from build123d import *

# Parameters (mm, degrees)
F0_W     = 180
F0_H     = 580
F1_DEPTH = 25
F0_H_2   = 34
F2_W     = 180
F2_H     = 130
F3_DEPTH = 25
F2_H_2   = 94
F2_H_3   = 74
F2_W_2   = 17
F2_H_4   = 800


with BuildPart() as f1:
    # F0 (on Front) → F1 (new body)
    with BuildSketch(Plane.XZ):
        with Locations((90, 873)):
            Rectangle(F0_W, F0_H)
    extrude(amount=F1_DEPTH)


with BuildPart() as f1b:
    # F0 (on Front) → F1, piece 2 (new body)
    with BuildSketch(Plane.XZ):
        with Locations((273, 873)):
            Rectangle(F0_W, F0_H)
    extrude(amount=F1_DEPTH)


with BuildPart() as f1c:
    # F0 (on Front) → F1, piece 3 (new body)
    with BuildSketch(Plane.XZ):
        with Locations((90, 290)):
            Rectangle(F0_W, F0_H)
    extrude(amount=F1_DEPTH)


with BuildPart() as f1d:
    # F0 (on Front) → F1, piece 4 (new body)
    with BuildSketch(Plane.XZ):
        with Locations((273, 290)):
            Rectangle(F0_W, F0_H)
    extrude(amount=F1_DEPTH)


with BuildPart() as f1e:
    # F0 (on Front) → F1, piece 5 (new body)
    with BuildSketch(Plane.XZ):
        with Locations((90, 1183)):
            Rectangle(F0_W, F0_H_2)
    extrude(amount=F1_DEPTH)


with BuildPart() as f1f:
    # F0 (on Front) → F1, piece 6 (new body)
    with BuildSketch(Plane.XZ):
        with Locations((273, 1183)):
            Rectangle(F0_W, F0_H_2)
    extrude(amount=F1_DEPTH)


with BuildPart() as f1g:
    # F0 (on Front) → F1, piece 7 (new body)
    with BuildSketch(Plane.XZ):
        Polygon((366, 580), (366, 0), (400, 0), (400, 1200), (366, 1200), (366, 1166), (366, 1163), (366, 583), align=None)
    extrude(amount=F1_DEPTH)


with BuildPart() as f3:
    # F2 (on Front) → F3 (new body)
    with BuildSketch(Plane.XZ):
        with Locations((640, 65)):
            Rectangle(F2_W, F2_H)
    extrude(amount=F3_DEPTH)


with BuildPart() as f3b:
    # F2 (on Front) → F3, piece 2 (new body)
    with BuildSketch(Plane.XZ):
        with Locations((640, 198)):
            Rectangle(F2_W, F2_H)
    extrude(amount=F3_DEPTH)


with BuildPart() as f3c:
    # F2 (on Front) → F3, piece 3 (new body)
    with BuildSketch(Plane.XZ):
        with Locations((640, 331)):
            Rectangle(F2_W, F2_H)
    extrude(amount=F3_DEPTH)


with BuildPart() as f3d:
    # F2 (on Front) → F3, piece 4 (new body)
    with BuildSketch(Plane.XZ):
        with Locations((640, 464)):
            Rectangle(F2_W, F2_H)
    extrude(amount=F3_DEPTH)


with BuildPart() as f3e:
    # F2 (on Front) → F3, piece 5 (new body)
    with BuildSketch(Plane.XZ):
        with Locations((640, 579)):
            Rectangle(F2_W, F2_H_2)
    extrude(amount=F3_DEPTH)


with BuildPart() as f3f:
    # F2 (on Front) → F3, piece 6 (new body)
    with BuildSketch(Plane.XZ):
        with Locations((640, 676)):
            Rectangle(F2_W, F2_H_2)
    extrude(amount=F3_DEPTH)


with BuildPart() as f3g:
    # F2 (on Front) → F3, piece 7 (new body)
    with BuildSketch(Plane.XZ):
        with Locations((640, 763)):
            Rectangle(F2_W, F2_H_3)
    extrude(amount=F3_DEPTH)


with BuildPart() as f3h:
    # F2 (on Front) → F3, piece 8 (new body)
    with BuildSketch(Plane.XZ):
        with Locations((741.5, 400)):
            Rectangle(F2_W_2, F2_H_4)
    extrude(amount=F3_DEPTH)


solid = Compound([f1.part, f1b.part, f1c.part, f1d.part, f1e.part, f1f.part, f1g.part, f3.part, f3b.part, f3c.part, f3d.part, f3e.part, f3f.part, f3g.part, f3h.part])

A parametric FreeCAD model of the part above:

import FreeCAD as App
import Part
import Sketcher

V = App.Vector

doc = App.newDocument("Part")
body = doc.addObject("PartDesign::Body", "Body")

sketch1 = body.newObject("Sketcher::SketchObject", "Sketch")
sketch1.AttachmentSupport = (doc.getObject("XZ_Plane"), [""])
sketch1.MapMode = "FlatFace"
sketch1.addGeometry([
    Part.LineSegment(V(0, 1163, 0), V(0, 583, 0)),
    Part.LineSegment(V(0, 583, 0), V(180, 583, 0)),
    Part.LineSegment(V(180, 583, 0), V(180, 1163, 0)),
    Part.LineSegment(V(180, 1163, 0), V(0, 1163, 0)),
], False)
sketch1.addConstraint([
    Sketcher.Constraint("Coincident", 0, 2, 1, 1),
    Sketcher.Constraint("Coincident", 1, 2, 2, 1),
    Sketcher.Constraint("Coincident", 2, 2, 3, 1),
    Sketcher.Constraint("Coincident", 3, 2, 0, 1),
    Sketcher.Constraint("Vertical", 0),
    Sketcher.Constraint("Horizontal", 1),
    Sketcher.Constraint("Vertical", 2),
    Sketcher.Constraint("Horizontal", 3),
    Sketcher.Constraint("PointOnObject", 0, 2, -2),
    Sketcher.Constraint("DistanceX", 1, 1, 1, 2, 180.0),
    Sketcher.Constraint("DistanceY", 0, 2, 0, 1, 580.0),
    Sketcher.Constraint("DistanceY", -1, 1, 0, 2, 583.0),
])
pad1 = body.newObject("PartDesign::Pad", "Pad")
pad1.Profile = sketch1
pad1.Length = 25
body2 = doc.addObject("PartDesign::Body", "Body001")

sketch2 = body2.newObject("Sketcher::SketchObject", "Sketch001")
sketch2.AttachmentSupport = (doc.getObject("XZ_Plane001"), [""])
sketch2.MapMode = "FlatFace"
sketch2.addGeometry([
    Part.LineSegment(V(183, 1163, 0), V(183, 583, 0)),
    Part.LineSegment(V(183, 583, 0), V(363, 583, 0)),
    Part.LineSegment(V(363, 583, 0), V(363, 1163, 0)),
    Part.LineSegment(V(363, 1163, 0), V(183, 1163, 0)),
], False)
sketch2.addConstraint([
    Sketcher.Constraint("Coincident", 0, 2, 1, 1),
    Sketcher.Constraint("Coincident", 1, 2, 2, 1),
    Sketcher.Constraint("Coincident", 2, 2, 3, 1),
    Sketcher.Constraint("Coincident", 3, 2, 0, 1),
    Sketcher.Constraint("Vertical", 0),
    Sketcher.Constraint("Horizontal", 1),
    Sketcher.Constraint("Vertical", 2),
    Sketcher.Constraint("Horizontal", 3),
    Sketcher.Constraint("DistanceX", 1, 1, 1, 2, 180.0),
    Sketcher.Constraint("DistanceY", 0, 2, 0, 1, 580.0),
    Sketcher.Constraint("DistanceX", -1, 1, 0, 2, 183.0),
    Sketcher.Constraint("DistanceY", -1, 1, 0, 2, 583.0),
])
pad2 = body2.newObject("PartDesign::Pad", "Pad001")
pad2.Profile = sketch2
pad2.Length = 25
body3 = doc.addObject("PartDesign::Body", "Body002")

sketch3 = body3.newObject("Sketcher::SketchObject", "Sketch002")
sketch3.AttachmentSupport = (doc.getObject("XZ_Plane002"), [""])
sketch3.MapMode = "FlatFace"
sketch3.addGeometry([
    Part.LineSegment(V(0, 580, 0), V(0, 0, 0)),
    Part.LineSegment(V(0, 0, 0), V(180, 0, 0)),
    Part.LineSegment(V(180, 0, 0), V(180, 580, 0)),
    Part.LineSegment(V(180, 580, 0), V(0, 580, 0)),
], False)
sketch3.addConstraint([
    Sketcher.Constraint("Coincident", 0, 2, 1, 1),
    Sketcher.Constraint("Coincident", 1, 2, 2, 1),
    Sketcher.Constraint("Coincident", 2, 2, 3, 1),
    Sketcher.Constraint("Coincident", 3, 2, 0, 1),
    Sketcher.Constraint("Vertical", 0),
    Sketcher.Constraint("Horizontal", 1),
    Sketcher.Constraint("Vertical", 2),
    Sketcher.Constraint("Horizontal", 3),
    Sketcher.Constraint("Coincident", 0, 2, -1, 1),
    Sketcher.Constraint("DistanceX", 1, 1, 1, 2, 180.0),
    Sketcher.Constraint("DistanceY", 0, 2, 0, 1, 580.0),
])
pad3 = body3.newObject("PartDesign::Pad", "Pad002")
pad3.Profile = sketch3
pad3.Length = 25
body4 = doc.addObject("PartDesign::Body", "Body003")

sketch4 = body4.newObject("Sketcher::SketchObject", "Sketch003")
sketch4.AttachmentSupport = (doc.getObject("XZ_Plane003"), [""])
sketch4.MapMode = "FlatFace"
sketch4.addGeometry([
    Part.LineSegment(V(183, 580, 0), V(183, 0, 0)),
    Part.LineSegment(V(183, 0, 0), V(363, 0, 0)),
    Part.LineSegment(V(363, 0, 0), V(363, 580, 0)),
    Part.LineSegment(V(363, 580, 0), V(183, 580, 0)),
], False)
sketch4.addConstraint([
    Sketcher.Constraint("Coincident", 0, 2, 1, 1),
    Sketcher.Constraint("Coincident", 1, 2, 2, 1),
    Sketcher.Constraint("Coincident", 2, 2, 3, 1),
    Sketcher.Constraint("Coincident", 3, 2, 0, 1),
    Sketcher.Constraint("Vertical", 0),
    Sketcher.Constraint("Horizontal", 1),
    Sketcher.Constraint("Vertical", 2),
    Sketcher.Constraint("Horizontal", 3),
    Sketcher.Constraint("PointOnObject", 0, 2, -1),
    Sketcher.Constraint("DistanceX", 1, 1, 1, 2, 180.0),
    Sketcher.Constraint("DistanceY", 0, 2, 0, 1, 580.0),
    Sketcher.Constraint("DistanceX", -1, 1, 0, 2, 183.0),
])
pad4 = body4.newObject("PartDesign::Pad", "Pad003")
pad4.Profile = sketch4
pad4.Length = 25
body5 = doc.addObject("PartDesign::Body", "Body004")

sketch5 = body5.newObject("Sketcher::SketchObject", "Sketch004")
sketch5.AttachmentSupport = (doc.getObject("XZ_Plane004"), [""])
sketch5.MapMode = "FlatFace"
sketch5.addGeometry([
    Part.LineSegment(V(0, 1200, 0), V(0, 1166, 0)),
    Part.LineSegment(V(0, 1166, 0), V(180, 1166, 0)),
    Part.LineSegment(V(180, 1166, 0), V(180, 1200, 0)),
    Part.LineSegment(V(180, 1200, 0), V(0, 1200, 0)),
], False)
sketch5.addConstraint([
    Sketcher.Constraint("Coincident", 0, 2, 1, 1),
    Sketcher.Constraint("Coincident", 1, 2, 2, 1),
    Sketcher.Constraint("Coincident", 2, 2, 3, 1),
    Sketcher.Constraint("Coincident", 3, 2, 0, 1),
    Sketcher.Constraint("Vertical", 0),
    Sketcher.Constraint("Horizontal", 1),
    Sketcher.Constraint("Vertical", 2),
    Sketcher.Constraint("Horizontal", 3),
    Sketcher.Constraint("PointOnObject", 0, 2, -2),
    Sketcher.Constraint("DistanceX", 1, 1, 1, 2, 180.0),
    Sketcher.Constraint("DistanceY", 0, 2, 0, 1, 34.0),
    Sketcher.Constraint("DistanceY", -1, 1, 0, 2, 1166.0),
])
pad5 = body5.newObject("PartDesign::Pad", "Pad004")
pad5.Profile = sketch5
pad5.Length = 25
body6 = doc.addObject("PartDesign::Body", "Body005")

sketch6 = body6.newObject("Sketcher::SketchObject", "Sketch005")
sketch6.AttachmentSupport = (doc.getObject("XZ_Plane005"), [""])
sketch6.MapMode = "FlatFace"
sketch6.addGeometry([
    Part.LineSegment(V(183, 1200, 0), V(183, 1166, 0)),
    Part.LineSegment(V(183, 1166, 0), V(363, 1166, 0)),
    Part.LineSegment(V(363, 1166, 0), V(363, 1200, 0)),
    Part.LineSegment(V(363, 1200, 0), V(183, 1200, 0)),
], False)
sketch6.addConstraint([
    Sketcher.Constraint("Coincident", 0, 2, 1, 1),
    Sketcher.Constraint("Coincident", 1, 2, 2, 1),
    Sketcher.Constraint("Coincident", 2, 2, 3, 1),
    Sketcher.Constraint("Coincident", 3, 2, 0, 1),
    Sketcher.Constraint("Vertical", 0),
    Sketcher.Constraint("Horizontal", 1),
    Sketcher.Constraint("Vertical", 2),
    Sketcher.Constraint("Horizontal", 3),
    Sketcher.Constraint("DistanceX", 1, 1, 1, 2, 180.0),
    Sketcher.Constraint("DistanceY", 0, 2, 0, 1, 34.0),
    Sketcher.Constraint("DistanceX", -1, 1, 0, 2, 183.0),
    Sketcher.Constraint("DistanceY", -1, 1, 0, 2, 1166.0),
])
pad6 = body6.newObject("PartDesign::Pad", "Pad005")
pad6.Profile = sketch6
pad6.Length = 25
body7 = doc.addObject("PartDesign::Body", "Body006")

sketch7 = body7.newObject("Sketcher::SketchObject", "Sketch006")
sketch7.AttachmentSupport = (doc.getObject("XZ_Plane006"), [""])
sketch7.MapMode = "FlatFace"
sketch7.addGeometry([
    Part.LineSegment(V(366, 0, 0), V(400, 0, 0)),
    Part.LineSegment(V(400, 0, 0), V(400, 1200, 0)),
    Part.LineSegment(V(400, 1200, 0), V(366, 1200, 0)),
    Part.LineSegment(V(366, 1200, 0), V(366, 0, 0)),
], False)
sketch7.addConstraint([
    Sketcher.Constraint("Coincident", 0, 2, 1, 1),
    Sketcher.Constraint("Coincident", 1, 2, 2, 1),
    Sketcher.Constraint("Coincident", 2, 2, 3, 1),
    Sketcher.Constraint("Coincident", 3, 2, 0, 1),
    Sketcher.Constraint("Horizontal", 0),
    Sketcher.Constraint("Vertical", 1),
    Sketcher.Constraint("Horizontal", 2),
    Sketcher.Constraint("Vertical", 3),
    Sketcher.Constraint("PointOnObject", 0, 2, -1),
    Sketcher.Constraint("DistanceX", 0, 1, 0, 2, 34.0),
    Sketcher.Constraint("DistanceY", 1, 1, 1, 2, 1200.0),
    Sketcher.Constraint("DistanceX", -1, 1, 0, 2, 400.0),
])
pad7 = body7.newObject("PartDesign::Pad", "Pad006")
pad7.Profile = sketch7
pad7.Length = 25
body8 = doc.addObject("PartDesign::Body", "Body007")

sketch8 = body8.newObject("Sketcher::SketchObject", "Sketch007")
sketch8.AttachmentSupport = (doc.getObject("XZ_Plane007"), [""])
sketch8.MapMode = "FlatFace"
sketch8.addGeometry([
    Part.LineSegment(V(550, 130, 0), V(550, 0, 0)),
    Part.LineSegment(V(550, 0, 0), V(730, 0, 0)),
    Part.LineSegment(V(730, 0, 0), V(730, 130, 0)),
    Part.LineSegment(V(730, 130, 0), V(550, 130, 0)),
], False)
sketch8.addConstraint([
    Sketcher.Constraint("Coincident", 0, 2, 1, 1),
    Sketcher.Constraint("Coincident", 1, 2, 2, 1),
    Sketcher.Constraint("Coincident", 2, 2, 3, 1),
    Sketcher.Constraint("Coincident", 3, 2, 0, 1),
    Sketcher.Constraint("Vertical", 0),
    Sketcher.Constraint("Horizontal", 1),
    Sketcher.Constraint("Vertical", 2),
    Sketcher.Constraint("Horizontal", 3),
    Sketcher.Constraint("PointOnObject", 0, 2, -1),
    Sketcher.Constraint("DistanceX", 1, 1, 1, 2, 180.0),
    Sketcher.Constraint("DistanceY", 0, 2, 0, 1, 130.0),
    Sketcher.Constraint("DistanceX", -1, 1, 0, 2, 550.0),
])
pad8 = body8.newObject("PartDesign::Pad", "Pad007")
pad8.Profile = sketch8
pad8.Length = 25
body9 = doc.addObject("PartDesign::Body", "Body008")

sketch9 = body9.newObject("Sketcher::SketchObject", "Sketch008")
sketch9.AttachmentSupport = (doc.getObject("XZ_Plane008"), [""])
sketch9.MapMode = "FlatFace"
sketch9.addGeometry([
    Part.LineSegment(V(550, 263, 0), V(550, 133, 0)),
    Part.LineSegment(V(550, 133, 0), V(730, 133, 0)),
    Part.LineSegment(V(730, 133, 0), V(730, 263, 0)),
    Part.LineSegment(V(730, 263, 0), V(550, 263, 0)),
], False)
sketch9.addConstraint([
    Sketcher.Constraint("Coincident", 0, 2, 1, 1),
    Sketcher.Constraint("Coincident", 1, 2, 2, 1),
    Sketcher.Constraint("Coincident", 2, 2, 3, 1),
    Sketcher.Constraint("Coincident", 3, 2, 0, 1),
    Sketcher.Constraint("Vertical", 0),
    Sketcher.Constraint("Horizontal", 1),
    Sketcher.Constraint("Vertical", 2),
    Sketcher.Constraint("Horizontal", 3),
    Sketcher.Constraint("DistanceX", 1, 1, 1, 2, 180.0),
    Sketcher.Constraint("DistanceY", 0, 2, 0, 1, 130.0),
    Sketcher.Constraint("DistanceX", -1, 1, 0, 2, 550.0),
    Sketcher.Constraint("DistanceY", -1, 1, 0, 2, 133.0),
])
pad9 = body9.newObject("PartDesign::Pad", "Pad008")
pad9.Profile = sketch9
pad9.Length = 25
body10 = doc.addObject("PartDesign::Body", "Body009")

sketch10 = body10.newObject("Sketcher::SketchObject", "Sketch009")
sketch10.AttachmentSupport = (doc.getObject("XZ_Plane009"), [""])
sketch10.MapMode = "FlatFace"
sketch10.addGeometry([
    Part.LineSegment(V(550, 396, 0), V(550, 266, 0)),
    Part.LineSegment(V(550, 266, 0), V(730, 266, 0)),
    Part.LineSegment(V(730, 266, 0), V(730, 396, 0)),
    Part.LineSegment(V(730, 396, 0), V(550, 396, 0)),
], False)
sketch10.addConstraint([
    Sketcher.Constraint("Coincident", 0, 2, 1, 1),
    Sketcher.Constraint("Coincident", 1, 2, 2, 1),
    Sketcher.Constraint("Coincident", 2, 2, 3, 1),
    Sketcher.Constraint("Coincident", 3, 2, 0, 1),
    Sketcher.Constraint("Vertical", 0),
    Sketcher.Constraint("Horizontal", 1),
    Sketcher.Constraint("Vertical", 2),
    Sketcher.Constraint("Horizontal", 3),
    Sketcher.Constraint("DistanceX", 1, 1, 1, 2, 180.0),
    Sketcher.Constraint("DistanceY", 0, 2, 0, 1, 130.0),
    Sketcher.Constraint("DistanceX", -1, 1, 0, 2, 550.0),
    Sketcher.Constraint("DistanceY", -1, 1, 0, 2, 266.0),
])
pad10 = body10.newObject("PartDesign::Pad", "Pad009")
pad10.Profile = sketch10
pad10.Length = 25
body11 = doc.addObject("PartDesign::Body", "Body010")

sketch11 = body11.newObject("Sketcher::SketchObject", "Sketch010")
sketch11.AttachmentSupport = (doc.getObject("XZ_Plane010"), [""])
sketch11.MapMode = "FlatFace"
sketch11.addGeometry([
    Part.LineSegment(V(550, 529, 0), V(550, 399, 0)),
    Part.LineSegment(V(550, 399, 0), V(730, 399, 0)),
    Part.LineSegment(V(730, 399, 0), V(730, 529, 0)),
    Part.LineSegment(V(730, 529, 0), V(550, 529, 0)),
], False)
sketch11.addConstraint([
    Sketcher.Constraint("Coincident", 0, 2, 1, 1),
    Sketcher.Constraint("Coincident", 1, 2, 2, 1),
    Sketcher.Constraint("Coincident", 2, 2, 3, 1),
    Sketcher.Constraint("Coincident", 3, 2, 0, 1),
    Sketcher.Constraint("Vertical", 0),
    Sketcher.Constraint("Horizontal", 1),
    Sketcher.Constraint("Vertical", 2),
    Sketcher.Constraint("Horizontal", 3),
    Sketcher.Constraint("DistanceX", 1, 1, 1, 2, 180.0),
    Sketcher.Constraint("DistanceY", 0, 2, 0, 1, 130.0),
    Sketcher.Constraint("DistanceX", -1, 1, 0, 2, 550.0),
    Sketcher.Constraint("DistanceY", -1, 1, 0, 2, 399.0),
])
pad11 = body11.newObject("PartDesign::Pad", "Pad010")
pad11.Profile = sketch11
pad11.Length = 25
body12 = doc.addObject("PartDesign::Body", "Body011")

sketch12 = body12.newObject("Sketcher::SketchObject", "Sketch011")
sketch12.AttachmentSupport = (doc.getObject("XZ_Plane011"), [""])
sketch12.MapMode = "FlatFace"
sketch12.addGeometry([
    Part.LineSegment(V(550, 626, 0), V(550, 532, 0)),
    Part.LineSegment(V(550, 532, 0), V(730, 532, 0)),
    Part.LineSegment(V(730, 532, 0), V(730, 626, 0)),
    Part.LineSegment(V(730, 626, 0), V(550, 626, 0)),
], False)
sketch12.addConstraint([
    Sketcher.Constraint("Coincident", 0, 2, 1, 1),
    Sketcher.Constraint("Coincident", 1, 2, 2, 1),
    Sketcher.Constraint("Coincident", 2, 2, 3, 1),
    Sketcher.Constraint("Coincident", 3, 2, 0, 1),
    Sketcher.Constraint("Vertical", 0),
    Sketcher.Constraint("Horizontal", 1),
    Sketcher.Constraint("Vertical", 2),
    Sketcher.Constraint("Horizontal", 3),
    Sketcher.Constraint("DistanceX", 1, 1, 1, 2, 180.0),
    Sketcher.Constraint("DistanceY", 0, 2, 0, 1, 94.0),
    Sketcher.Constraint("DistanceX", -1, 1, 0, 2, 550.0),
    Sketcher.Constraint("DistanceY", -1, 1, 0, 2, 532.0),
])
pad12 = body12.newObject("PartDesign::Pad", "Pad011")
pad12.Profile = sketch12
pad12.Length = 25
body13 = doc.addObject("PartDesign::Body", "Body012")

sketch13 = body13.newObject("Sketcher::SketchObject", "Sketch012")
sketch13.AttachmentSupport = (doc.getObject("XZ_Plane012"), [""])
sketch13.MapMode = "FlatFace"
sketch13.addGeometry([
    Part.LineSegment(V(550, 723, 0), V(550, 629, 0)),
    Part.LineSegment(V(550, 629, 0), V(730, 629, 0)),
    Part.LineSegment(V(730, 629, 0), V(730, 723, 0)),
    Part.LineSegment(V(730, 723, 0), V(550, 723, 0)),
], False)
sketch13.addConstraint([
    Sketcher.Constraint("Coincident", 0, 2, 1, 1),
    Sketcher.Constraint("Coincident", 1, 2, 2, 1),
    Sketcher.Constraint("Coincident", 2, 2, 3, 1),
    Sketcher.Constraint("Coincident", 3, 2, 0, 1),
    Sketcher.Constraint("Vertical", 0),
    Sketcher.Constraint("Horizontal", 1),
    Sketcher.Constraint("Vertical", 2),
    Sketcher.Constraint("Horizontal", 3),
    Sketcher.Constraint("DistanceX", 1, 1, 1, 2, 180.0),
    Sketcher.Constraint("DistanceY", 0, 2, 0, 1, 94.0),
    Sketcher.Constraint("DistanceX", -1, 1, 0, 2, 550.0),
    Sketcher.Constraint("DistanceY", -1, 1, 0, 2, 629.0),
])
pad13 = body13.newObject("PartDesign::Pad", "Pad012")
pad13.Profile = sketch13
pad13.Length = 25
body14 = doc.addObject("PartDesign::Body", "Body013")

sketch14 = body14.newObject("Sketcher::SketchObject", "Sketch013")
sketch14.AttachmentSupport = (doc.getObject("XZ_Plane013"), [""])
sketch14.MapMode = "FlatFace"
sketch14.addGeometry([
    Part.LineSegment(V(550, 800, 0), V(550, 726, 0)),
    Part.LineSegment(V(550, 726, 0), V(730, 726, 0)),
    Part.LineSegment(V(730, 726, 0), V(730, 800, 0)),
    Part.LineSegment(V(730, 800, 0), V(550, 800, 0)),
], False)
sketch14.addConstraint([
    Sketcher.Constraint("Coincident", 0, 2, 1, 1),
    Sketcher.Constraint("Coincident", 1, 2, 2, 1),
    Sketcher.Constraint("Coincident", 2, 2, 3, 1),
    Sketcher.Constraint("Coincident", 3, 2, 0, 1),
    Sketcher.Constraint("Vertical", 0),
    Sketcher.Constraint("Horizontal", 1),
    Sketcher.Constraint("Vertical", 2),
    Sketcher.Constraint("Horizontal", 3),
    Sketcher.Constraint("DistanceX", 1, 1, 1, 2, 180.0),
    Sketcher.Constraint("DistanceY", 0, 2, 0, 1, 74.0),
    Sketcher.Constraint("DistanceX", -1, 1, 0, 2, 550.0),
    Sketcher.Constraint("DistanceY", -1, 1, 0, 2, 726.0),
])
pad14 = body14.newObject("PartDesign::Pad", "Pad013")
pad14.Profile = sketch14
pad14.Length = 25
body15 = doc.addObject("PartDesign::Body", "Body014")

sketch15 = body15.newObject("Sketcher::SketchObject", "Sketch014")
sketch15.AttachmentSupport = (doc.getObject("XZ_Plane014"), [""])
sketch15.MapMode = "FlatFace"
sketch15.addGeometry([
    Part.LineSegment(V(733, 800, 0), V(733, 0, 0)),
    Part.LineSegment(V(733, 0, 0), V(750, 0, 0)),
    Part.LineSegment(V(750, 0, 0), V(750, 800, 0)),
    Part.LineSegment(V(750, 800, 0), V(733, 800, 0)),
], False)
sketch15.addConstraint([
    Sketcher.Constraint("Coincident", 0, 2, 1, 1),
    Sketcher.Constraint("Coincident", 1, 2, 2, 1),
    Sketcher.Constraint("Coincident", 2, 2, 3, 1),
    Sketcher.Constraint("Coincident", 3, 2, 0, 1),
    Sketcher.Constraint("Vertical", 0),
    Sketcher.Constraint("Horizontal", 1),
    Sketcher.Constraint("Vertical", 2),
    Sketcher.Constraint("Horizontal", 3),
    Sketcher.Constraint("PointOnObject", 0, 2, -1),
    Sketcher.Constraint("DistanceX", 1, 1, 1, 2, 17.0),
    Sketcher.Constraint("DistanceY", 0, 2, 0, 1, 800.0),
    Sketcher.Constraint("DistanceX", -1, 1, 0, 2, 733.0),
])
pad15 = body15.newObject("PartDesign::Pad", "Pad014")
pad15.Profile = sketch15
pad15.Length = 25

doc.recompute()
